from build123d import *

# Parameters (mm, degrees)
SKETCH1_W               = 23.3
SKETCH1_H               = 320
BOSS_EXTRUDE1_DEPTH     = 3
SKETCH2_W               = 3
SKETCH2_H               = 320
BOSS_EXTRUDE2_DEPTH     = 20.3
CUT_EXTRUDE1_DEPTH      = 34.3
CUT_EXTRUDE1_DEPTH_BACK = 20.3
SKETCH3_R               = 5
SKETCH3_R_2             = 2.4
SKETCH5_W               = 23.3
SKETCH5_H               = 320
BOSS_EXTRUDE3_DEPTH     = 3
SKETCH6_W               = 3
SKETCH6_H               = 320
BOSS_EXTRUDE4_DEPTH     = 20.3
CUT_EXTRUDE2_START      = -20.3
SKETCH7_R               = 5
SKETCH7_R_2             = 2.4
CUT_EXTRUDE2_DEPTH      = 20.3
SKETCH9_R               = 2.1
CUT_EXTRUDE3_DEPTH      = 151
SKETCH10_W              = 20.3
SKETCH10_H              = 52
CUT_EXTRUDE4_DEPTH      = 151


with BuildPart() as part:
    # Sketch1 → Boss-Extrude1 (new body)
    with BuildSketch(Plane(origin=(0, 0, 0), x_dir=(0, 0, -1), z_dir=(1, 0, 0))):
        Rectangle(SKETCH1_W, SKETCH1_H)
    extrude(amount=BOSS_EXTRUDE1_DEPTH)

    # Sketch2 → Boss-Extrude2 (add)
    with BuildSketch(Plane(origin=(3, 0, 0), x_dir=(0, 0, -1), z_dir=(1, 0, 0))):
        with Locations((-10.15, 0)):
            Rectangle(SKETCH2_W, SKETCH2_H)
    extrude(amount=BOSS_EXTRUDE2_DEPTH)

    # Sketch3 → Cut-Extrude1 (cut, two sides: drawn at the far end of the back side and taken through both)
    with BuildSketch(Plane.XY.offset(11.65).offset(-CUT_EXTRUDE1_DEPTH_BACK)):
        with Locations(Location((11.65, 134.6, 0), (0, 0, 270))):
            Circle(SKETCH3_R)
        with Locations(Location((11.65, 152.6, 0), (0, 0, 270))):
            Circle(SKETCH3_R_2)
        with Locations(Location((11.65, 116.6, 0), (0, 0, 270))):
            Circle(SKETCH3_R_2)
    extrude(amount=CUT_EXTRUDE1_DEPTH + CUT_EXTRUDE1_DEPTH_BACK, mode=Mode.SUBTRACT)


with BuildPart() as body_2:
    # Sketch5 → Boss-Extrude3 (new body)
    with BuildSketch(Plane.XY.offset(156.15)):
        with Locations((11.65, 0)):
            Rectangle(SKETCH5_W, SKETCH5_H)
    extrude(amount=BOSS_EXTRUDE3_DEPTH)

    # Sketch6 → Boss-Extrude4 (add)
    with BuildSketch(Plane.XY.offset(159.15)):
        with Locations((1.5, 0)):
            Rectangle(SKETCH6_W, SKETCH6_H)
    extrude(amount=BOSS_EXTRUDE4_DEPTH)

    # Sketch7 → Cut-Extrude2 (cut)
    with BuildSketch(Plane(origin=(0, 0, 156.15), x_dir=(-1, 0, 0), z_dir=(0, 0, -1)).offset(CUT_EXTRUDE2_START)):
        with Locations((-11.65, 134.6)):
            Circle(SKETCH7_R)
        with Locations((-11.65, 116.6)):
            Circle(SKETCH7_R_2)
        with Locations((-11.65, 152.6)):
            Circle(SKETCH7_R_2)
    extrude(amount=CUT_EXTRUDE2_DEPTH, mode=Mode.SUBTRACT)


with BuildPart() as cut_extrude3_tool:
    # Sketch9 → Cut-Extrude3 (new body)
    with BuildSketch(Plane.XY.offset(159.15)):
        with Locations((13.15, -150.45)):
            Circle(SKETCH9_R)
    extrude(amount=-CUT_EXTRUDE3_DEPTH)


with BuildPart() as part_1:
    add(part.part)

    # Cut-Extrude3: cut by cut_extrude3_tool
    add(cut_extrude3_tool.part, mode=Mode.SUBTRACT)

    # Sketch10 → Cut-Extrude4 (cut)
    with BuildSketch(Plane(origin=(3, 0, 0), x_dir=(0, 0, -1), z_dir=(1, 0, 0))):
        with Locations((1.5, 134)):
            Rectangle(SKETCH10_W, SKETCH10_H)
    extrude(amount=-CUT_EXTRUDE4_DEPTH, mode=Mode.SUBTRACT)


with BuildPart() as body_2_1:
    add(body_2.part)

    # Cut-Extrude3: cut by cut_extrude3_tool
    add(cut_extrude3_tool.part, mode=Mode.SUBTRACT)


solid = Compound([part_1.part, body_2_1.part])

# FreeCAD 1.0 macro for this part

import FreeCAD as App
import Part
import Sketcher
from FreeCAD import Vector
Q = App.Units.Quantity

doc = App.newDocument("Part")
body = doc.addObject("PartDesign::Body", "Body")

sketch1 = body.newObject("Sketcher::SketchObject", "Sketch")
sketch1.AttachmentSupport = (doc.getObject("YZ_Plane"), [""])
sketch1.MapMode = "FlatFace"
sketch1.addGeometry(Part.LineSegment(Vector(160, 12, 0), Vector(-160, 12, 0)), False)
sketch1.addGeometry(Part.LineSegment(Vector(-160, 12, 0), Vector(-160, -12, 0)), False)
sketch1.addGeometry(Part.LineSegment(Vector(-160, -12, 0), Vector(160, -12, 0)), False)
sketch1.addGeometry(Part.LineSegment(Vector(160, -12, 0), Vector(160, 12, 0)), False)
sketch1.addConstraint(Sketcher.Constraint("Coincident", 0, 2, 1, 1))
sketch1.addConstraint(Sketcher.Constraint("Coincident", 1, 2, 2, 1))
sketch1.addConstraint(Sketcher.Constraint("Coincident", 2, 2, 3, 1))
sketch1.addConstraint(Sketcher.Constraint("Coincident", 3, 2, 0, 1))
sketch1.addConstraint(Sketcher.Constraint("Horizontal", 0))
sketch1.addConstraint(Sketcher.Constraint("Vertical", 1))
sketch1.addConstraint(Sketcher.Constraint("Horizontal", 2))
sketch1.addConstraint(Sketcher.Constraint("Vertical", 3))
sketch1.addConstraint(Sketcher.Constraint("Symmetric", 0, 2, 2, 2, -1, 1))
sketch1.addConstraint(Sketcher.Constraint("DistanceX", 0, 2, 0, 1, Q("320 mm")))
sketch1.addConstraint(Sketcher.Constraint("DistanceY", 1, 2, 1, 1, Q("23.3 mm")))
pad1 = body.newObject("PartDesign::Pad", "Pad")
pad1.Profile = sketch1
pad1.Length = 3

sketch2 = body.newObject("Sketcher::SketchObject", "Sketch001")
sketch2.AttachmentSupport = (doc.getObject("YZ_Plane"), [""])
sketch2.MapMode = "FlatFace"
sketch2.AttachmentOffset = App.Placement(Vector(0, 0, 3), App.Rotation())
sketch2.addGeometry(Part.LineSegment(Vector(160, 11.7, 0), Vector(-160, 11.7, 0)), False)
sketch2.addGeometry(Part.LineSegment(Vector(-160, 11.7, 0), Vector(-160, 8.7, 0)), False)
sketch2.addGeometry(Part.LineSegment(Vector(-160, 8.7, 0), Vector(160, 8.7, 0)), False)
sketch2.addGeometry(Part.LineSegment(Vector(160, 8.7, 0), Vector(160, 11.7, 0)), False)
sketch2.addConstraint(Sketcher.Constraint("Coincident", 0, 2, 1, 1))
sketch2.addConstraint(Sketcher.Constraint("Coincident", 1, 2, 2, 1))
sketch2.addConstraint(Sketcher.Constraint("Coincident", 2, 2, 3, 1))
sketch2.addConstraint(Sketcher.Constraint("Coincident", 3, 2, 0, 1))
sketch2.addConstraint(Sketcher.Constraint("Horizontal", 0))
sketch2.addConstraint(Sketcher.Constraint("Vertical", 1))
sketch2.addConstraint(Sketcher.Constraint("Horizontal", 2))
sketch2.addConstraint(Sketcher.Constraint("Vertical", 3))
sketch2.addConstraint(Sketcher.Constraint("DistanceX", 0, 2, 0, 1, Q("320 mm")))
sketch2.addConstraint(Sketcher.Constraint("DistanceY", 1, 2, 1, 1, Q("3 mm")))
sketch2.addConstraint(Sketcher.Constraint("DistanceX", 0, 2, -1, 1, Q("160 mm")))
sketch2.addConstraint(Sketcher.Constraint("DistanceY", -1, 1, 0, 2, Q("11.65 mm")))
pad2 = body.newObject("PartDesign::Pad", "Pad001")
pad2.Profile = sketch2
pad2.Length = 20.3

sketch3 = body.newObject("Sketcher::SketchObject", "Sketch002")
sketch3.AttachmentSupport = (doc.getObject("XY_Plane"), [""])
sketch3.MapMode = "FlatFace"
sketch3.AttachmentOffset = App.Placement(Vector(0, 0, 11.65), App.Rotation())
sketch3.addGeometry(Part.Circle(Vector(11.7, 134.6, 0), Vector(0, 0, 1), 5), False)
sketch3.addGeometry(Part.Circle(Vector(11.7, 152.6, 0), Vector(0, 0, 1), 2.4), False)
sketch3.addGeometry(Part.Circle(Vector(11.7, 116.6, 0), Vector(0, 0, 1), 2.4), False)
sketch3.addConstraint(Sketcher.Constraint("Equal", 1, 2))
sketch3.addConstraint(Sketcher.Constraint("Vertical", 0, 3, 1, 3))
sketch3.addConstraint(Sketcher.Constraint("Vertical", 1, 3, 2, 3))
sketch3.addConstraint(Sketcher.Constraint("Diameter", 0, Q("10 mm")))
sketch3.addConstraint(Sketcher.Constraint("Diameter", 1, Q("4.8 mm")))
sketch3.addConstraint(Sketcher.Constraint("DistanceY", 0, 3, 1, 3, Q("18 mm")))
sketch3.addConstraint(Sketcher.Constraint("DistanceY", 2, 3, 0, 3, Q("18 mm")))
sketch3.addConstraint(Sketcher.Constraint("DistanceY", -1, 1, 0, 3, Q("134.6 mm")))
sketch3.addConstraint(Sketcher.Constraint("DistanceX", -1, 1, 0, 3, Q("11.65 mm")))
pocket1 = body.newObject("PartDesign::Pocket", "Pocket")
pocket1.Profile = sketch3
pocket1.Type = "ThroughAll"
pocket1.Midplane = True
body2 = doc.addObject("PartDesign::Body", "Body001")

sketch4 = body2.newObject("Sketcher::SketchObject", "Sketch003")
sketch4.AttachmentSupport = (doc.getObject("XY_Plane001"), [""])
sketch4.MapMode = "FlatFace"
sketch4.AttachmentOffset = App.Placement(Vector(0, 0, 156.15), App.Rotation())
sketch4.addGeometry(Part.LineSegment(Vector(0, 160, 0), Vector(0, -160, 0)), False)
sketch4.addGeometry(Part.LineSegment(Vector(0, -160, 0), Vector(23, -160, 0)), False)
sketch4.addGeometry(Part.LineSegment(Vector(23, -160, 0), Vector(23, 160, 0)), False)
sketch4.addGeometry(Part.LineSegment(Vector(23, 160, 0), Vector(0, 160, 0)), False)
sketch4.addConstraint(Sketcher.Constraint("Coincident", 0, 2, 1, 1))
sketch4.addConstraint(Sketcher.Constraint("Coincident", 1, 2, 2, 1))
sketch4.addConstraint(Sketcher.Constraint("Coincident", 2, 2, 3, 1))
sketch4.addConstraint(Sketcher.Constraint("Coincident", 3, 2, 0, 1))
sketch4.addConstraint(Sketcher.Constraint("Vertical", 0))
sketch4.addConstraint(Sketcher.Constraint("Horizontal", 1))
sketch4.addConstraint(Sketcher.Constraint("Vertical", 2))
sketch4.addConstraint(Sketcher.Constraint("Horizontal", 3))
sketch4.addConstraint(Sketcher.Constraint("Symmetric", 0, 2, 3, 2, -1, 1))
sketch4.addConstraint(Sketcher.Constraint("DistanceY", 0, 2, 0, 1, Q("320 mm")))
sketch4.addConstraint(Sketcher.Constraint("DistanceX", 1, 1, 1, 2, Q("23.3 mm")))
pad3 = body2.newObject("PartDesign::Pad", "Pad002")
pad3.Profile = sketch4
pad3.Length = 3

sketch5 = body2.newObject("Sketcher::SketchObject", "Sketch004")
sketch5.AttachmentSupport = (doc.getObject("XY_Plane001"), [""])
sketch5.MapMode = "FlatFace"
sketch5.AttachmentOffset = App.Placement(Vector(0, 0, 159.15), App.Rotation())
sketch5.addGeometry(Part.LineSegment(Vector(0, 160, 0), Vector(0, -160, 0)), False)
sketch5.addGeometry(Part.LineSegment(Vector(0, -160, 0), Vector(3, -160, 0)), False)
sketch5.addGeometry(Part.LineSegment(Vector(3, -160, 0), Vector(3, 160, 0)), False)
sketch5.addGeometry(Part.LineSegment(Vector(3, 160, 0), Vector(0, 160, 0)), False)
sketch5.addConstraint(Sketcher.Constraint("Coincident", 0, 2, 1, 1))
sketch5.addConstraint(Sketcher.Constraint("Coincident", 1, 2, 2, 1))
sketch5.addConstraint(Sketcher.Constraint("Coincident", 2, 2, 3, 1))
sketch5.addConstraint(Sketcher.Constraint("Coincident", 3, 2, 0, 1))
sketch5.addConstraint(Sketcher.Constraint("Vertical", 0))
sketch5.addConstraint(Sketcher.Constraint("Horizontal", 1))
sketch5.addConstraint(Sketcher.Constraint("Vertical", 2))
sketch5.addConstraint(Sketcher.Constraint("Horizontal", 3))
sketch5.addConstraint(Sketcher.Constraint("Symmetric", 0, 2, 3, 2, -1, 1))
sketch5.addConstraint(Sketcher.Constraint("DistanceX", 1, 1, 1, 2, Q("3 mm")))
sketch5.addConstraint(Sketcher.Constraint("DistanceY", 0, 2, 0, 1, Q("320 mm")))
pad4 = body2.newObject("PartDesign::Pad", "Pad003")
pad4.Profile = sketch5
pad4.Length = 20.3

sketch6 = body2.newObject("Sketcher::SketchObject", "Sketch005")
sketch6.AttachmentSupport = (doc.getObject("XY_Plane001"), [""])
sketch6.MapMode = "FlatFace"
sketch6.AttachmentOffset = App.Placement(Vector(0, 0, 176.45), App.Rotation())
sketch6.addGeometry(Part.Circle(Vector(11.7, 134.6, 0), Vector(0, 0, 1), 5), False)
sketch6.addGeometry(Part.Circle(Vector(11.7, 116.6, 0), Vector(0, 0, 1), 2.4), False)
sketch6.addGeometry(Part.Circle(Vector(11.7, 152.6, 0), Vector(0, 0, 1), 2.4), False)
sketch6.addConstraint(Sketcher.Constraint("Equal", 1, 2))
sketch6.addConstraint(Sketcher.Constraint("Vertical", 0, 3, 1, 3))
sketch6.addConstraint(Sketcher.Constraint("Vertical", 1, 3, 2, 3))
sketch6.addConstraint(Sketcher.Constraint("Diameter", 0, Q("10 mm")))
sketch6.addConstraint(Sketcher.Constraint("Diameter", 1, Q("4.8 mm")))
sketch6.addConstraint(Sketcher.Constraint("DistanceY", 1, 3, 0, 3, Q("18 mm")))
sketch6.addConstraint(Sketcher.Constraint("DistanceY", 0, 3, 2, 3, Q("18 mm")))
sketch6.addConstraint(Sketcher.Constraint("DistanceY", -1, 1, 0, 3, Q("134.6 mm")))
sketch6.addConstraint(Sketcher.Constraint("DistanceX", -1, 1, 0, 3, Q("11.65 mm")))
pocket2 = body2.newObject("PartDesign::Pocket", "Pocket001")
pocket2.Profile = sketch6
pocket2.Length = 20.3
body3 = doc.addObject("PartDesign::Body", "Body002")

sketch7 = body3.newObject("Sketcher::SketchObject", "Sketch006")
sketch7.AttachmentSupport = (doc.getObject("XY_Plane002"), [""])
sketch7.MapMode = "FlatFace"
sketch7.AttachmentOffset = App.Placement(Vector(0, 0, 159.15), App.Rotation())
sketch7.addGeometry(Part.Circle(Vector(13.2, -150.4, 0), Vector(0, 0, 1), 2.1), False)
sketch7.addConstraint(Sketcher.Constraint("Diameter", 0, Q("4.2 mm")))
sketch7.addConstraint(Sketcher.Constraint("DistanceX", -1, 1, 0, 3, Q("13.15 mm")))
sketch7.addConstraint(Sketcher.Constraint("DistanceY", 0, 3, -1, 1, Q("150.45 mm")))
pad5 = body3.newObject("PartDesign::Pad", "Pad004")
pad5.Profile = sketch7
pad5.Length = 151
pad5.Reversed = True
doc.recompute()

body4 = doc.addObject("PartDesign::Body", "Body003")
body4.BaseFeature = body3
boolean = body.newObject("PartDesign::Boolean", "Boolean")
boolean.Type = "Cut"
boolean.addObjects([body4])
doc.recompute()

sketch8 = body.newObject("Sketcher::SketchObject", "Sketch007")
sketch8.AttachmentSupport = (doc.getObject("YZ_Plane"), [""])
sketch8.MapMode = "FlatFace"
sketch8.AttachmentOffset = App.Placement(Vector(0, 0, 3), App.Rotation())
sketch8.addGeometry(Part.LineSegment(Vector(160, 9, 0), Vector(108, 9, 0)), False)
sketch8.addGeometry(Part.LineSegment(Vector(108, 9, 0), Vector(108, -12, 0)), False)
sketch8.addGeometry(Part.LineSegment(Vector(108, -12, 0), Vector(160, -12, 0)), False)
sketch8.addGeometry(Part.LineSegment(Vector(160, -12, 0), Vector(160, 9, 0)), False)
sketch8.addConstraint(Sketcher.Constraint("Coincident", 0, 2, 1, 1))
sketch8.addConstraint(Sketcher.Constraint("Coincident", 1, 2, 2, 1))
sketch8.addConstraint(Sketcher.Constraint("Coincident", 2, 2, 3, 1))
sketch8.addConstraint(Sketcher.Constraint("Coincident", 3, 2, 0, 1))
sketch8.addConstraint(Sketcher.Constraint("Horizontal", 0))
sketch8.addConstraint(Sketcher.Constraint("Vertical", 1))
sketch8.addConstraint(Sketcher.Constraint("Horizontal", 2))
sketch8.addConstraint(Sketcher.Constraint("Vertical", 3))
sketch8.addConstraint(Sketcher.Constraint("DistanceX", 0, 2, 0, 1, Q("52 mm")))
sketch8.addConstraint(Sketcher.Constraint("DistanceY", 1, 2, 1, 1, Q("20.3 mm")))
sketch8.addConstraint(Sketcher.Constraint("DistanceX", -1, 1, 0, 2, Q("108 mm")))
sketch8.addConstraint(Sketcher.Constraint("DistanceY", -1, 1, 0, 2, Q("8.65 mm")))
pocket3 = body.newObject("PartDesign::Pocket", "Pocket002")
pocket3.Profile = sketch8
pocket3.Length = 151
doc.recompute()

boolean2 = body2.newObject("PartDesign::Boolean", "Boolean001")
boolean2.Type = "Cut"
boolean2.addObjects([body3])

doc.recompute()
